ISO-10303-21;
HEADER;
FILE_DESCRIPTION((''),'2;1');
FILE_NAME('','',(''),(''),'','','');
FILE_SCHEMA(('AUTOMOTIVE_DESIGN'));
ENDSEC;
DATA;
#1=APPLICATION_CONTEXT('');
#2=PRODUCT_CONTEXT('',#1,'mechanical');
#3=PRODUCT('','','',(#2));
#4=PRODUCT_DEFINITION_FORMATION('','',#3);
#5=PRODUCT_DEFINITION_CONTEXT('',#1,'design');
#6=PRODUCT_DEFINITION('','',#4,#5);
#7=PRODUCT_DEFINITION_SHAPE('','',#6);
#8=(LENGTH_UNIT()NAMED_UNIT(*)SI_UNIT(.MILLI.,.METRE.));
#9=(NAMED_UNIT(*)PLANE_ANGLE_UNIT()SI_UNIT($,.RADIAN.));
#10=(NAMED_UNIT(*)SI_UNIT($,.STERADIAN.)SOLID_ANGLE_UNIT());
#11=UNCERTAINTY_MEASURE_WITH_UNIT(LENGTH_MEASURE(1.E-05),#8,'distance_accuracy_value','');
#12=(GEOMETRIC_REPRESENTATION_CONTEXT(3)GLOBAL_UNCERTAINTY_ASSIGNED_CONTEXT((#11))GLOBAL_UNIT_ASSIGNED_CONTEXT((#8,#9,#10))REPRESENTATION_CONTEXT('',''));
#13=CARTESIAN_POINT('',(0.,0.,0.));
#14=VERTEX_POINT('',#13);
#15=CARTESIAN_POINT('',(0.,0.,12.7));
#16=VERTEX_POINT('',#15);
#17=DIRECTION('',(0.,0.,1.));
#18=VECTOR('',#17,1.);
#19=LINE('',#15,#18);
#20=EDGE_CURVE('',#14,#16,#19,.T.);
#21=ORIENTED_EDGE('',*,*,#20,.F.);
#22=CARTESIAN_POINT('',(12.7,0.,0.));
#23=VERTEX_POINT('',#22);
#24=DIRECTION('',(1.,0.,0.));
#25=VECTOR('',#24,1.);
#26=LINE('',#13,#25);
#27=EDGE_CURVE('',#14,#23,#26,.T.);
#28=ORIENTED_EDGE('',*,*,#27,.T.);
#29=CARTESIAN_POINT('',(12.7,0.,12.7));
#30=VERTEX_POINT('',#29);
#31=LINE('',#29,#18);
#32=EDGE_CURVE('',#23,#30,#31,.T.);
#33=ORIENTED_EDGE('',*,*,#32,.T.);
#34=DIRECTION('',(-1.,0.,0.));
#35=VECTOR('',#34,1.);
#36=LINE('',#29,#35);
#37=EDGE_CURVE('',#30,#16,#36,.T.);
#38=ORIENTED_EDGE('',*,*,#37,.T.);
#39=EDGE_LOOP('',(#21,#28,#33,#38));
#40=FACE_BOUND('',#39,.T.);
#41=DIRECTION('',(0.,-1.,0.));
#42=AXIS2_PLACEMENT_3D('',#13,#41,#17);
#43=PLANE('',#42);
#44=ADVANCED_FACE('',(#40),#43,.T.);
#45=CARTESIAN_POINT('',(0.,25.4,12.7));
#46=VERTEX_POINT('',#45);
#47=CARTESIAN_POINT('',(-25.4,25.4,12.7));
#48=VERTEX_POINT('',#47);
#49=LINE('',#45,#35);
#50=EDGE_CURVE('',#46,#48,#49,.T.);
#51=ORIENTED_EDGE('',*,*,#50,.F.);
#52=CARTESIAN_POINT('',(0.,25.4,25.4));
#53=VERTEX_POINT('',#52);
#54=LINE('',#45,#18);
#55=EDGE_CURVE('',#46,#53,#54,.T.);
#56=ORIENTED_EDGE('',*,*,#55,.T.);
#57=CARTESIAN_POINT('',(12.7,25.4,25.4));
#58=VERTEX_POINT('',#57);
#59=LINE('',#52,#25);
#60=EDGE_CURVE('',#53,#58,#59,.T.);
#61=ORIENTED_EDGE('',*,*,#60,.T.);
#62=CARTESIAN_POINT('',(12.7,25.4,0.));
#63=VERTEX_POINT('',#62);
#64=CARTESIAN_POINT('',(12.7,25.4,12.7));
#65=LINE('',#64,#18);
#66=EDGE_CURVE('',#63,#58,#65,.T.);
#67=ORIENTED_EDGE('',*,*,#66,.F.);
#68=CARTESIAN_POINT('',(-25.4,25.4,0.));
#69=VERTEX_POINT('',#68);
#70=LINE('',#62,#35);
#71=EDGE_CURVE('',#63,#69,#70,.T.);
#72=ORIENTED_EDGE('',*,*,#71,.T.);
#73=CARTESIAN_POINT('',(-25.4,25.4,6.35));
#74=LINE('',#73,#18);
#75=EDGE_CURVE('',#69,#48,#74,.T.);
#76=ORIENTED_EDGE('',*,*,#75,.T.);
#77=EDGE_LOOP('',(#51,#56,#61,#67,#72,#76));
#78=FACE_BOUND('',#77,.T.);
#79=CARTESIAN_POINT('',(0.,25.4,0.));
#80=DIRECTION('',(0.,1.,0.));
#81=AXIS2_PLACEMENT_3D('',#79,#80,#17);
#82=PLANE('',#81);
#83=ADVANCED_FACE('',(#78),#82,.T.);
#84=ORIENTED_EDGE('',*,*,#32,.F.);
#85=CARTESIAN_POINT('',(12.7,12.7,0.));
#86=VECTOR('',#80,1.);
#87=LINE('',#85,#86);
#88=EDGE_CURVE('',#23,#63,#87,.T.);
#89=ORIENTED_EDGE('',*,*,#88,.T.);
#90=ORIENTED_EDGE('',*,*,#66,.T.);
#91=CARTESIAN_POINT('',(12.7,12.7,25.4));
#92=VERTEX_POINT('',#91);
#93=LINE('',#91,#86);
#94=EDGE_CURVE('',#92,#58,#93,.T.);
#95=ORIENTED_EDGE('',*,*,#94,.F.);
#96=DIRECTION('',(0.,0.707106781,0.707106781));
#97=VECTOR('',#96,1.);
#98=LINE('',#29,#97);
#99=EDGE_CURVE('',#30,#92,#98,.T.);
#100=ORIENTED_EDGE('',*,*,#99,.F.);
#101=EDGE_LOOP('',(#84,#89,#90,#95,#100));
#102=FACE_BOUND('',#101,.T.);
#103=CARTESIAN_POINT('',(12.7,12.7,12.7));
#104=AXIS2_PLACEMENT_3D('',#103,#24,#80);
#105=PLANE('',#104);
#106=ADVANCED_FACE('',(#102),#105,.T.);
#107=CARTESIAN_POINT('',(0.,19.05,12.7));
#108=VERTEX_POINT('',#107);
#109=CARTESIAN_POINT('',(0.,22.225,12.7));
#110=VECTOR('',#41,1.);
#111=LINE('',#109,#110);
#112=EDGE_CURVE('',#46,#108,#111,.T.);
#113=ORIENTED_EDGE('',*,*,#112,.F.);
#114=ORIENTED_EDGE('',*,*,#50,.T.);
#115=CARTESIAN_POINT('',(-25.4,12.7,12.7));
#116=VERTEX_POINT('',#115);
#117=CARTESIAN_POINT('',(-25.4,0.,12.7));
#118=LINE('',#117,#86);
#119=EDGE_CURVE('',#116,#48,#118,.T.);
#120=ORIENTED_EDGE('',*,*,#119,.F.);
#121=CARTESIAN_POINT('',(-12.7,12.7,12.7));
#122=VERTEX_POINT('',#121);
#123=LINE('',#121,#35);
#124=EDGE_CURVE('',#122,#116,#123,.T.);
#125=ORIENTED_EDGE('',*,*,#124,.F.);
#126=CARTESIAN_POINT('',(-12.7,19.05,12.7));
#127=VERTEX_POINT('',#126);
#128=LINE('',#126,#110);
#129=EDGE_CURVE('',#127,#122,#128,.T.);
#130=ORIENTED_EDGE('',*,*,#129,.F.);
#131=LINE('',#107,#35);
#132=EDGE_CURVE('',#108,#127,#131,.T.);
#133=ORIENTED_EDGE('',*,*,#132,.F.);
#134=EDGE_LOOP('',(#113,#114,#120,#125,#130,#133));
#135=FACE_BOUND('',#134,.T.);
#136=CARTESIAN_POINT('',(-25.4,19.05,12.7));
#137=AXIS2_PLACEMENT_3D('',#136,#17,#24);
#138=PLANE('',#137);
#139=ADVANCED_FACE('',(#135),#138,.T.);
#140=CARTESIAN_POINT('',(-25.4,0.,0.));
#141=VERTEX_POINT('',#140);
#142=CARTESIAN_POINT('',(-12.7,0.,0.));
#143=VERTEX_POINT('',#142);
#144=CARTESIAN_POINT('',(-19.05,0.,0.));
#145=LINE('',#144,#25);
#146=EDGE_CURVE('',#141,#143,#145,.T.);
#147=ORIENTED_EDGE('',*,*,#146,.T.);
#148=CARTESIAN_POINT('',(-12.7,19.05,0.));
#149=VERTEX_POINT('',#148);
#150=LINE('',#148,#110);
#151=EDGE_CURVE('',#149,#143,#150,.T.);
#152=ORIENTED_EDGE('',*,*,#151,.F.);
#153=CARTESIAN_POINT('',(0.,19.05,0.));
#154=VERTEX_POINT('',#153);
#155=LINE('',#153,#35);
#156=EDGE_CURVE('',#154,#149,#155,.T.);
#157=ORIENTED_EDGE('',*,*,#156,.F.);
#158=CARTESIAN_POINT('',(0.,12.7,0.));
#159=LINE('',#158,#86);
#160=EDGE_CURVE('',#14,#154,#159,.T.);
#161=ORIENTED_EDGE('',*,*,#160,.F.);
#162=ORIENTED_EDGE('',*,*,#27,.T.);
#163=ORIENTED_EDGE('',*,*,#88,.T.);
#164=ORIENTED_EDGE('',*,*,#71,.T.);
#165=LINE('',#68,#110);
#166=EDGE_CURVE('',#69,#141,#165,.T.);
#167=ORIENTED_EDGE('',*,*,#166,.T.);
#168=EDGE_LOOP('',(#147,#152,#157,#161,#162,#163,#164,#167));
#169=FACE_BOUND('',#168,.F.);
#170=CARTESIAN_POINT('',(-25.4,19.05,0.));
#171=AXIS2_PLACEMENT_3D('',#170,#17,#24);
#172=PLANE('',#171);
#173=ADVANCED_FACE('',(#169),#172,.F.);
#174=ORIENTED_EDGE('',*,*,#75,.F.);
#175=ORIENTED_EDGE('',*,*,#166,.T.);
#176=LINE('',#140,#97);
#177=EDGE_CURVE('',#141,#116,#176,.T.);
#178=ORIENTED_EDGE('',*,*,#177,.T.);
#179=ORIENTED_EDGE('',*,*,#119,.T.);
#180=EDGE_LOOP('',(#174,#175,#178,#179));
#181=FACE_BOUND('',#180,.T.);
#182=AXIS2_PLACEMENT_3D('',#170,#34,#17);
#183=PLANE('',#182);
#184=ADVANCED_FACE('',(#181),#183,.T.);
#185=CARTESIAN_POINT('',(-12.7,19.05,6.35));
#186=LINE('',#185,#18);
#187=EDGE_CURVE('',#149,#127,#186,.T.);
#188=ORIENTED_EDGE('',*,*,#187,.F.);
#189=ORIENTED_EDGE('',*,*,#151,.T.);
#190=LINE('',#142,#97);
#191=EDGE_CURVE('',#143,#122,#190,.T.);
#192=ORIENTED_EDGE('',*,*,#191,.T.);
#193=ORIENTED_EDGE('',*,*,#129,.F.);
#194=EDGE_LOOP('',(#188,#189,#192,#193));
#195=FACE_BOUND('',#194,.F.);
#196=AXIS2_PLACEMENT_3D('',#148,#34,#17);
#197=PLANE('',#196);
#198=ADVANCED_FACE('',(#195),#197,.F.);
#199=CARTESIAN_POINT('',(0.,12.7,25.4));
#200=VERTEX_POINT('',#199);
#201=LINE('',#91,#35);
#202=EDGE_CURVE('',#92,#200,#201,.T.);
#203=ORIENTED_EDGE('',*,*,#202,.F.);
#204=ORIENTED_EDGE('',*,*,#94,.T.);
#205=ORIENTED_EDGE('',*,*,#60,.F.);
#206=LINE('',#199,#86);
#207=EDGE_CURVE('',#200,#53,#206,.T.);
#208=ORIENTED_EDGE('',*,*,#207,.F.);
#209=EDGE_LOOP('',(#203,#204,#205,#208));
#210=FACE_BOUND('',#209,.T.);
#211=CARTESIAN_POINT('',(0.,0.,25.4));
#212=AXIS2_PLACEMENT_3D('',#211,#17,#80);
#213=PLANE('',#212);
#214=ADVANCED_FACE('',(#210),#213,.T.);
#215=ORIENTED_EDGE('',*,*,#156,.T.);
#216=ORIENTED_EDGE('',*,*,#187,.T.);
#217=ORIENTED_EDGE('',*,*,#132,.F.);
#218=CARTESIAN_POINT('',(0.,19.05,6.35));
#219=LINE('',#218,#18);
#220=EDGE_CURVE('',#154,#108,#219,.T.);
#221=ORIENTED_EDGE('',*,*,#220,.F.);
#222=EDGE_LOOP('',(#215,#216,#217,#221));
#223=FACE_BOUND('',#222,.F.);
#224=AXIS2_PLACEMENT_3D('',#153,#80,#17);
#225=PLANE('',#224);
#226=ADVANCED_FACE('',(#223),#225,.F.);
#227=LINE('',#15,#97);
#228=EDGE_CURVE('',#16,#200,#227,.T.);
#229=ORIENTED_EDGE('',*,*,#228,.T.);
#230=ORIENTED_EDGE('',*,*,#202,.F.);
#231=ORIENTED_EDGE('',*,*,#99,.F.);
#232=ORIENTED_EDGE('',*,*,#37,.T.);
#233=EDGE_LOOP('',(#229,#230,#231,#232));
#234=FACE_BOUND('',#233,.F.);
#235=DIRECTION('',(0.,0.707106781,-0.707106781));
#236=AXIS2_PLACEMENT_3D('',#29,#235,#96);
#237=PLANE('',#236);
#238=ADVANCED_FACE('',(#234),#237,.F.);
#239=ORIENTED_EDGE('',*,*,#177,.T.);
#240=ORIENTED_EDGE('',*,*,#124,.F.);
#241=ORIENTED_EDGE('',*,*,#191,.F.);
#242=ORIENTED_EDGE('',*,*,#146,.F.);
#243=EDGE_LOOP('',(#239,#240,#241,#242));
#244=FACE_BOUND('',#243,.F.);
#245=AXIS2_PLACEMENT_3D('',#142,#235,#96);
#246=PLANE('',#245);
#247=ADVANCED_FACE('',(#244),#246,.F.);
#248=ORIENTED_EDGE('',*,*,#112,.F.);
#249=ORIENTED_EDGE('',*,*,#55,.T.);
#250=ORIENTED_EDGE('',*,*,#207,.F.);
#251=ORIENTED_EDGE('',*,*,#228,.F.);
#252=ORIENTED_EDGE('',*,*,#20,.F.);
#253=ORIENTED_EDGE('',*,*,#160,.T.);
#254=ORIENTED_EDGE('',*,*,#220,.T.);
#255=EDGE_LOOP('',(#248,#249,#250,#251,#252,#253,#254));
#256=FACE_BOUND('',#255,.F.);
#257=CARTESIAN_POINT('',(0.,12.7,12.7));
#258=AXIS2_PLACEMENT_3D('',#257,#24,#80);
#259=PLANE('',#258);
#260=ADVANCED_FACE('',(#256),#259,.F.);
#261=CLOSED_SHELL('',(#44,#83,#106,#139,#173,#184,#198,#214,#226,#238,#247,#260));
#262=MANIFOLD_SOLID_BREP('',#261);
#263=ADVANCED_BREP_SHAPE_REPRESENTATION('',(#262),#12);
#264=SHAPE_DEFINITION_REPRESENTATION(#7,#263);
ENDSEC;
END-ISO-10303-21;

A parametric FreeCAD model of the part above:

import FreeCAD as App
import Part
import Sketcher

V = App.Vector
Q = App.Units.Quantity


def add_polygon(sketch, points):
    """Adds a closed chain of lines whose ends are joined by coincident constraints."""
    first, n = sketch.GeometryCount, len(points)
    for a, b in zip(points, points[1:] + points[:1]):
        sketch.addGeometry(Part.LineSegment(App.Vector(*a, 0), App.Vector(*b, 0)), False)
    for i in range(n):
        sketch.addConstraint(Sketcher.Constraint("Coincident", first + i, 2, first + (i + 1) % n, 1))

doc = App.newDocument("Part")
body = doc.addObject("PartDesign::Body", "Body")

# Sketch on YZ plane
sketch1 = doc.addObject("Sketcher::SketchObject", "Sketch")
body.addObject(sketch1)
sketch1.AttachmentSupport = (doc.YZ_Plane, [""])
sketch1.MapMode = "FlatFace"
add_polygon(sketch1, [(0, 25), (0, 0), (25, 0), (25, 25)])  # lines 0-3
sketch1.addConstraint(Sketcher.Constraint("Vertical", 0))
sketch1.addConstraint(Sketcher.Constraint("Horizontal", 1))
sketch1.addConstraint(Sketcher.Constraint("Vertical", 2))
sketch1.addConstraint(Sketcher.Constraint("Horizontal", 3))
sketch1.addConstraint(Sketcher.Constraint("Coincident", 0, 2, -1, 1))
sketch1.addConstraint(Sketcher.Constraint("Equal", 3, 0))
sketch1.addConstraint(Sketcher.Constraint("DistanceX", 1, 1, 1, 2, Q("1 in")))
pad1 = doc.addObject("PartDesign::Pad", "Pad")
body.addObject(pad1)
pad1.Profile = sketch1
pad1.Length = Q("0.5 in")

# Sketch on YZ plane
sketch2 = doc.addObject("Sketcher::SketchObject", "Sketch001")
body.addObject(sketch2)
sketch2.AttachmentSupport = (doc.YZ_Plane, [""])
sketch2.MapMode = "FlatFace"
sketch2.AttachmentOffset = App.Placement(V(0, 0, 0.5 * 25.4), App.Rotation())
add_polygon(sketch2, [(13, 25), (0, 25), (0, 13)])  # lines 0-2
sketch2.addConstraint(Sketcher.Constraint("Horizontal", 0))
sketch2.addConstraint(Sketcher.Constraint("Vertical", 1))
sketch2.addConstraint(Sketcher.Constraint("PointOnObject", 0, 2, -2))
sketch2.addConstraint(Sketcher.Constraint("Equal", 0, 1))
sketch2.addConstraint(Sketcher.Constraint("DistanceX", 0, 2, 0, 1, Q("0.5 in")))
sketch2.addConstraint(Sketcher.Constraint("DistanceY", -1, 1, 0, 2, Q("1 in")))
pocket1 = doc.addObject("PartDesign::Pocket", "Pocket")
body.addObject(pocket1)
pocket1.Profile = sketch2
pocket1.Length = Q("0.5 in")

# Sketch on YZ plane
sketch3 = doc.addObject("Sketcher::SketchObject", "Sketch002")
body.addObject(sketch3)
sketch3.AttachmentSupport = (doc.YZ_Plane, [""])
sketch3.MapMode = "FlatFace"
add_polygon(sketch3, [(25, 13), (25, 0), (19, 0), (19, 13)])  # lines 0-3
sketch3.addConstraint(Sketcher.Constraint("Vertical", 0))
sketch3.addConstraint(Sketcher.Constraint("Horizontal", 1))
sketch3.addConstraint(Sketcher.Constraint("Vertical", 2))
sketch3.addConstraint(Sketcher.Constraint("Horizontal", 3))
sketch3.addConstraint(Sketcher.Constraint("PointOnObject", 0, 2, -1))
sketch3.addConstraint(Sketcher.Constraint("DistanceY", 0, 2, 0, 1, Q("0.5 in")))
sketch3.addConstraint(Sketcher.Constraint("DistanceX", -1, 1, 0, 2, Q("1 in")))
sketch3.addConstraint(Sketcher.Constraint("DistanceX", 1, 2, 1, 1, Q("0.25 in")))
pad2 = doc.addObject("PartDesign::Pad", "Pad001")
body.addObject(pad2)
pad2.Profile = sketch3
pad2.Length = Q("1 in")
pad2.Reversed = True

# Sketch on XZ plane
sketch4 = doc.addObject("Sketcher::SketchObject", "Sketch003")
body.addObject(sketch4)
sketch4.AttachmentSupport = (doc.XZ_Plane, [""])
sketch4.MapMode = "FlatFace"
sketch4.AttachmentOffset = App.Placement(V(0, 0, -0.75 * 25.4), App.Rotation())
add_polygon(sketch4, [(-25, 13), (-25, 0), (-13, 0), (-13, 13)])  # lines 0-3
sketch4.addConstraint(Sketcher.Constraint("Vertical", 0))
sketch4.addConstraint(Sketcher.Constraint("Horizontal", 1))
sketch4.addConstraint(Sketcher.Constraint("Vertical", 2))
sketch4.addConstraint(Sketcher.Constraint("Horizontal", 3))
sketch4.addConstraint(Sketcher.Constraint("PointOnObject", 0, 2, -1))
sketch4.addConstraint(Sketcher.Constraint("Equal", 3, 0))
sketch4.addConstraint(Sketcher.Constraint("DistanceX", 1, 1, 1, 2, Q("0.5 in")))
sketch4.addConstraint(Sketcher.Constraint("DistanceX", 0, 2, -1, 1, Q("1 in")))
pad3 = doc.addObject("PartDesign::Pad", "Pad002")
body.addObject(pad3)
pad3.Profile = sketch4
pad3.Length = Q("0.75 in")

# Sketch on YZ plane
sketch5 = doc.addObject("Sketcher::SketchObject", "Sketch004")
body.addObject(sketch5)
sketch5.AttachmentSupport = (doc.YZ_Plane, [""])
sketch5.MapMode = "FlatFace"
sketch5.AttachmentOffset = App.Placement(V(0, 0, -0.5 * 25.4), App.Rotation())
add_polygon(sketch5, [(0, 13), (0, 0), (13, 13)])  # lines 0-2
sketch5.addConstraint(Sketcher.Constraint("Vertical", 0))
sketch5.addConstraint(Sketcher.Constraint("Horizontal", 2))
sketch5.addConstraint(Sketcher.Constraint("Coincident", 0, 2, -1, 1))
sketch5.addConstraint(Sketcher.Constraint("Equal", 2, 0))
sketch5.addConstraint(Sketcher.Constraint("DistanceX", 2, 2, 2, 1, Q("0.5 in")))
pocket2 = doc.addObject("PartDesign::Pocket", "Pocket001")
body.addObject(pocket2)
pocket2.Profile = sketch5
pocket2.Length = Q("0.5 in")

doc.recompute()
